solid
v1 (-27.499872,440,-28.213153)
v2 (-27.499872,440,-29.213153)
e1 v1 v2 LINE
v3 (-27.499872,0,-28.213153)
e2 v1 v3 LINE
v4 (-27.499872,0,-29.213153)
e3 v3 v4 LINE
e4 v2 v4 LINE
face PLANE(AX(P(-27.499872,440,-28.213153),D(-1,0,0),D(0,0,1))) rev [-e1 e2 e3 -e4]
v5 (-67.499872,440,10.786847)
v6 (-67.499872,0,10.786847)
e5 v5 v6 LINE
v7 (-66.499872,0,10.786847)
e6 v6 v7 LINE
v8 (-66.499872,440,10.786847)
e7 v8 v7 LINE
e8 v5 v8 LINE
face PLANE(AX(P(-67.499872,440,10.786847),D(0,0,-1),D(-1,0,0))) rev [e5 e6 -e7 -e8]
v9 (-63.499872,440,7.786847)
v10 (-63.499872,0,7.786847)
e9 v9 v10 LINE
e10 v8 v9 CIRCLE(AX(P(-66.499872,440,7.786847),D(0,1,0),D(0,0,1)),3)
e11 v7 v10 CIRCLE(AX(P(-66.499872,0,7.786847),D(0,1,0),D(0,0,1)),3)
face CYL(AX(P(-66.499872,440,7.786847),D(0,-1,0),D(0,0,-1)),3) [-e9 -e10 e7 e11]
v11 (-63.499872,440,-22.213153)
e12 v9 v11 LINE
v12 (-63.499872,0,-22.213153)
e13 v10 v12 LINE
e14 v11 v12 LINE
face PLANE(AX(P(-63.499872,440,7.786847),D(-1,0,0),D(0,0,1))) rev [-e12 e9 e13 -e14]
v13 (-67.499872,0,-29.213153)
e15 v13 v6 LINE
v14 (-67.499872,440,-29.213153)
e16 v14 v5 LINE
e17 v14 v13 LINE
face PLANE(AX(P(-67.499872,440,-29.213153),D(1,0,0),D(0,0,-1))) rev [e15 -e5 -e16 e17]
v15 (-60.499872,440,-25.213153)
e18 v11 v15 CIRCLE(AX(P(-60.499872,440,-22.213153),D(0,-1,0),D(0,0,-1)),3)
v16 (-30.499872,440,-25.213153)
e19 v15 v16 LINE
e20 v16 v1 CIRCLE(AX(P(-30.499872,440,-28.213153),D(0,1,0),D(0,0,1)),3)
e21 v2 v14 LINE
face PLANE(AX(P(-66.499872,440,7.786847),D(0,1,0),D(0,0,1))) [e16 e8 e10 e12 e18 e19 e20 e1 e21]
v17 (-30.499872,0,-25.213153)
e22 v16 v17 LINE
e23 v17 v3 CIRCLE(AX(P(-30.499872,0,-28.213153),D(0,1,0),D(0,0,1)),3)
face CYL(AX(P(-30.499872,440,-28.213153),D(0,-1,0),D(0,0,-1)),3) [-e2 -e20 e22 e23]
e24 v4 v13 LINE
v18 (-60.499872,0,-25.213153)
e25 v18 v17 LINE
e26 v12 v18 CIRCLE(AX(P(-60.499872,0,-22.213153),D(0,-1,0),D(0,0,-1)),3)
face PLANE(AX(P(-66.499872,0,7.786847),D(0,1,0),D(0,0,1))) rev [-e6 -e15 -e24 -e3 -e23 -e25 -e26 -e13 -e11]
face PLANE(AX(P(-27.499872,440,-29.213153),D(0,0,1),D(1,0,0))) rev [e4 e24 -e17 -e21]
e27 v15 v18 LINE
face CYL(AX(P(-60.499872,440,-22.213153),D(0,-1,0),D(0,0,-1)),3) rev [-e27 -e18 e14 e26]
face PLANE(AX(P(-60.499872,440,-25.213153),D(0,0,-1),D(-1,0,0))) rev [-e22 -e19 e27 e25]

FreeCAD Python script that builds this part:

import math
import FreeCAD as App
import Part
import Sketcher
Q = App.Units.Quantity

doc = App.newDocument("Part")
params = doc.addObject("Spreadsheet::Sheet", "Params")
for row, (alias, value) in enumerate([
    ("sketch1_radius", "3 mm"),
    ("sketch1_width", "40 mm"),
    ("sketch1_width2", "1 mm"),
    ("pad1_length", "440 mm"),
], start=1):
    params.set(f"A{row}", alias)
    params.set(f"B{row}", "=" + value)
    params.setAlias(f"B{row}", alias)

body = doc.addObject("PartDesign::Body", "Body")

# Sketch on XZ plane
sketch1 = body.newObject("Sketcher::SketchObject", "Sketch")
sketch1.AttachmentSupport = (doc.getObject("XZ_Plane"), [""])
sketch1.MapMode = "FlatFace"
sketch1.addGeometry([
    Part.LineSegment(App.Vector(-27.5, -29.2, 0), App.Vector(-67.5, -29.2, 0)),  # 0
    Part.LineSegment(App.Vector(-67.5, -29.2, 0), App.Vector(-67.5, 10.8, 0)),  # 1
    Part.LineSegment(App.Vector(-67.5, 10.8, 0), App.Vector(-66.5, 10.8, 0)),  # 2
    Part.ArcOfCircle(Part.Circle(App.Vector(-66.5, 7.8, 0), App.Vector(0, 0, 1), 3), math.radians(0), math.radians(90)),  # 3
    Part.LineSegment(App.Vector(-63.5, 7.8, 0), App.Vector(-63.5, -22.2, 0)),  # 4
    Part.ArcOfCircle(Part.Circle(App.Vector(-60.5, -22.2, 0), App.Vector(0, 0, 1), 3), math.radians(180), math.radians(270)),  # 5
    Part.LineSegment(App.Vector(-60.5, -25.2, 0), App.Vector(-30.5, -25.2, 0)),  # 6
    Part.ArcOfCircle(Part.Circle(App.Vector(-30.5, -28.2, 0), App.Vector(0, 0, 1), 3), math.radians(0), math.radians(90)),  # 7
    Part.LineSegment(App.Vector(-27.5, -28.2, 0), App.Vector(-27.5, -29.2, 0)),  # 8
], False)
sketch1.addConstraint([
    Sketcher.Constraint("Coincident", 0, 2, 1, 1),
    Sketcher.Constraint("Coincident", 1, 2, 2, 1),
    Sketcher.Constraint("Tangent", 2, 2, 3, 2),
    Sketcher.Constraint("Tangent", 3, 1, 4, 1),
    Sketcher.Constraint("Tangent", 4, 2, 5, 1),
    Sketcher.Constraint("Tangent", 5, 2, 6, 1),
    Sketcher.Constraint("Tangent", 6, 2, 7, 2),
    Sketcher.Constraint("Tangent", 7, 1, 8, 1),
    Sketcher.Constraint("Coincident", 8, 2, 0, 1),
    Sketcher.Constraint("Horizontal", 0),
    Sketcher.Constraint("Vertical", 1),
    Sketcher.Constraint("Horizontal", 2),
    Sketcher.Constraint("Vertical", 4),
    Sketcher.Constraint("Horizontal", 6),
    Sketcher.Constraint("Vertical", 8),
    Sketcher.Constraint("Equal", 3, 5),
    Sketcher.Constraint("Equal", 5, 7),
    Sketcher.Constraint("Equal", 0, 1),
    Sketcher.Constraint("Equal", 6, 4),
    Sketcher.Constraint("Radius", 3, Q("3 mm")),
    Sketcher.Constraint("DistanceX", 0, 2, 0, 1, Q("40 mm")),
    Sketcher.Constraint("DistanceX", 2, 1, 2, 2, Q("1 mm")),
    Sketcher.Constraint("DistanceX", 3, 3, -1, 1, Q("66.499872 mm")),
    Sketcher.Constraint("DistanceY", -1, 1, 3, 3, Q("7.786847 mm")),
])
sketch1.setExpression("Constraints[19]", "Params.sketch1_radius")
sketch1.setExpression("Constraints[20]", "Params.sketch1_width")
sketch1.setExpression("Constraints[21]", "Params.sketch1_width2")
pad1 = body.newObject("PartDesign::Pad", "Pad")
pad1.Profile = sketch1
pad1.setExpression("Length", "Params.pad1_length")
pad1.Reversed = True

doc.recompute()
